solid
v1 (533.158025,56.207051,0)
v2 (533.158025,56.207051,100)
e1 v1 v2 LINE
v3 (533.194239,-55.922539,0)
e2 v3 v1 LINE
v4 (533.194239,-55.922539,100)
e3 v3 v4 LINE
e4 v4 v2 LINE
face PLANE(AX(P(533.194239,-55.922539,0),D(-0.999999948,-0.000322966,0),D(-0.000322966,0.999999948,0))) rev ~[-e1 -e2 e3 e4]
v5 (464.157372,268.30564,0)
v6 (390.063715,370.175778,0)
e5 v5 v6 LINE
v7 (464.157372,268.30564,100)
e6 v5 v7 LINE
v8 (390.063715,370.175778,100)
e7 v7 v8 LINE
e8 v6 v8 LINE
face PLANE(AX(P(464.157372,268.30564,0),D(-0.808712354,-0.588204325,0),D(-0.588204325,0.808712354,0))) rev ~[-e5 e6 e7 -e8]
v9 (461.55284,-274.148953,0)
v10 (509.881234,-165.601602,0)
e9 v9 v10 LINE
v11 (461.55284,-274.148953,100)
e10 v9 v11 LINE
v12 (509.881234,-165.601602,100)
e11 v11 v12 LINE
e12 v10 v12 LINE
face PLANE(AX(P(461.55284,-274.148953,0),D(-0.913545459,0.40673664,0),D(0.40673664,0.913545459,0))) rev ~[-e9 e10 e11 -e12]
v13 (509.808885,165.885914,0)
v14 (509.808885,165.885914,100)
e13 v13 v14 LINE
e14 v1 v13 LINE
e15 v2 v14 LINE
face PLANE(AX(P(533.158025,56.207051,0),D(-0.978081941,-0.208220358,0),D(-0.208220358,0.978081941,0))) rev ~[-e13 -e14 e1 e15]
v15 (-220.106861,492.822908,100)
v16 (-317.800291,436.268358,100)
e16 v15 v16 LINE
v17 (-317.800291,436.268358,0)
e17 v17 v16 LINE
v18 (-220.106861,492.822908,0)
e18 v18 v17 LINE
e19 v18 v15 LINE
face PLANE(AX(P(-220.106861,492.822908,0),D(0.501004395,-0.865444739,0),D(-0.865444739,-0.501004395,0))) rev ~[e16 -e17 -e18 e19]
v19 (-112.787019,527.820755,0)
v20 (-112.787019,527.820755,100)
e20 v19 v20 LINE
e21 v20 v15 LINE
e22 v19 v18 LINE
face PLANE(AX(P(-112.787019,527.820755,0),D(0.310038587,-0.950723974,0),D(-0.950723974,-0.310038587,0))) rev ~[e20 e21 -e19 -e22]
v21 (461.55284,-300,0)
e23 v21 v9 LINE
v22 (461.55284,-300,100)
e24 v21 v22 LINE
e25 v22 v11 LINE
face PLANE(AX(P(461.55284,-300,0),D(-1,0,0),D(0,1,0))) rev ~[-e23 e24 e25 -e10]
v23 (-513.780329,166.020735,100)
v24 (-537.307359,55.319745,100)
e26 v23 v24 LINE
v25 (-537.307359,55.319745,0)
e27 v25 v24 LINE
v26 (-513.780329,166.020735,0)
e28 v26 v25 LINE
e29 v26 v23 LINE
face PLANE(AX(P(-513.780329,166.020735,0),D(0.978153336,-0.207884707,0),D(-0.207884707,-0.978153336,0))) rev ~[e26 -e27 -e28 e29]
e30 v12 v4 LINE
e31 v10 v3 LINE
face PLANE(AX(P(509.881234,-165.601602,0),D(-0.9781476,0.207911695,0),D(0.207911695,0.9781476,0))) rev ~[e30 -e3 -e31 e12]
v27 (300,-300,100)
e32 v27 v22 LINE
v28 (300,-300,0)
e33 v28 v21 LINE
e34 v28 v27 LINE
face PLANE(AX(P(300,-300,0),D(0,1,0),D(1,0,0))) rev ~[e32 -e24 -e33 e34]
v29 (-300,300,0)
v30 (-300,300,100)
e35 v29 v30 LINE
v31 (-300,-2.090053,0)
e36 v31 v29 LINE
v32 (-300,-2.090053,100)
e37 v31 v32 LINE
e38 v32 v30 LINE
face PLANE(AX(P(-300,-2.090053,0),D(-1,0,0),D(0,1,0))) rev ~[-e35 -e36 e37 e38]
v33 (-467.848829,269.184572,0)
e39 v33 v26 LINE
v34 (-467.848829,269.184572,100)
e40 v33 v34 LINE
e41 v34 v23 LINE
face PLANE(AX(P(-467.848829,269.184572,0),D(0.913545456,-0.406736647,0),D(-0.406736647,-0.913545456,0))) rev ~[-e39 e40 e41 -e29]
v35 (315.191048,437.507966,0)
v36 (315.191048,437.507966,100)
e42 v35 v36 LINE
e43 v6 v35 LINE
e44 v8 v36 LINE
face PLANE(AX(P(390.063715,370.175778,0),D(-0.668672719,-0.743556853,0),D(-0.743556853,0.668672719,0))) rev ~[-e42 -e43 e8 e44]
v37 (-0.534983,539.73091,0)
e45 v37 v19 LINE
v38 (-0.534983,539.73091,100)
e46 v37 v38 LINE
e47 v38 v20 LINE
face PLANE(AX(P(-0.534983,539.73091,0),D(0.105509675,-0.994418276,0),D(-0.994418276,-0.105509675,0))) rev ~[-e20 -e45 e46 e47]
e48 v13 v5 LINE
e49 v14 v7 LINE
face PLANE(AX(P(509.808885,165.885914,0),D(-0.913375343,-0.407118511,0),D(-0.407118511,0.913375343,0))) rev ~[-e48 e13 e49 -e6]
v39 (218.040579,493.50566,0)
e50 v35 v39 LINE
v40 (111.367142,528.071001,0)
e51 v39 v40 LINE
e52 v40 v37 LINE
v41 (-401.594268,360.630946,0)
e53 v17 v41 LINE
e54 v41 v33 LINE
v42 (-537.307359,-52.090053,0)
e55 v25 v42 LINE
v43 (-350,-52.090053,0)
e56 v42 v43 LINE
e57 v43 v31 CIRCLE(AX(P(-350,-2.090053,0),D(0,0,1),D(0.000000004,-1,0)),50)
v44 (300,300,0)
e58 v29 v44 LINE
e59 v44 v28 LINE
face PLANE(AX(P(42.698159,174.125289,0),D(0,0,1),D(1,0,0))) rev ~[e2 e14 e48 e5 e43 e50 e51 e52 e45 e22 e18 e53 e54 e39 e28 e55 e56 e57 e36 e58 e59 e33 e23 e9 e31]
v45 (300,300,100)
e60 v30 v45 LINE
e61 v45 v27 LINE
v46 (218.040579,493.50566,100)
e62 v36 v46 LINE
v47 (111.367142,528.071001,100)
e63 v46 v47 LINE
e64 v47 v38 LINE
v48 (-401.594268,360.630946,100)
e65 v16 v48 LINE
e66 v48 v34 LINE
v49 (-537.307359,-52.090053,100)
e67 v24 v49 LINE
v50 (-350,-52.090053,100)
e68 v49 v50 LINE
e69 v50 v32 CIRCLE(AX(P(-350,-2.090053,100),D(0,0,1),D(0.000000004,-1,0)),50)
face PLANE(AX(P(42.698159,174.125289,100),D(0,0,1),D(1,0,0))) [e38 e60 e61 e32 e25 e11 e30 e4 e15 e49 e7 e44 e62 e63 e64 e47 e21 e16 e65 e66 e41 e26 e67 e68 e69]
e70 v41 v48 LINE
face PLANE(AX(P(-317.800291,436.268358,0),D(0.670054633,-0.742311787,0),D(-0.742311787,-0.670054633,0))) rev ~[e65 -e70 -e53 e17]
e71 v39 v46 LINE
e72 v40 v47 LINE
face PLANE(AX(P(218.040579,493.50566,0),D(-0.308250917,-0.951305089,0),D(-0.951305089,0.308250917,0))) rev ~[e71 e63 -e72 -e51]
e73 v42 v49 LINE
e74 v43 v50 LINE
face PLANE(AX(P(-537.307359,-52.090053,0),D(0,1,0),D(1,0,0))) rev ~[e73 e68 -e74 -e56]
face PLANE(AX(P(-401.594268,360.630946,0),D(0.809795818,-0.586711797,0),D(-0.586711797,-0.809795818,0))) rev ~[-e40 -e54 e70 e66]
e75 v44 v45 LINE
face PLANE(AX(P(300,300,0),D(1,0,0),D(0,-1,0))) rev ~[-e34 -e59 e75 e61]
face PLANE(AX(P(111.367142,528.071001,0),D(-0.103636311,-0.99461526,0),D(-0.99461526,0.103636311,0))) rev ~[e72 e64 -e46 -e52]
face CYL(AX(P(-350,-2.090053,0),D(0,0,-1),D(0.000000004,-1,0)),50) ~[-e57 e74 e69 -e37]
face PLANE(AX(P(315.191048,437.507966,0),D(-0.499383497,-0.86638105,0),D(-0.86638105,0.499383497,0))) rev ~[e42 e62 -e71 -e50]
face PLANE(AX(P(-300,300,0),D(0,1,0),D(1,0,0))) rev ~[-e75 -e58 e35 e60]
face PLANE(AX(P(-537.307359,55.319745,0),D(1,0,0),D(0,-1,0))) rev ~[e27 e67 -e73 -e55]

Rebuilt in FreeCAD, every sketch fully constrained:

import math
import FreeCAD as App
import Part
import Sketcher

V = App.Vector
Q = App.Units.Quantity

doc = App.newDocument("Part")
params = doc.addObject("Spreadsheet::Sheet", "Params")
for row, (alias, value) in enumerate([
    ("sketch1_radius", "50 mm"),
    ("sketch1_width", "600 mm"),
    ("pad1_length", "100 mm"),
], start=1):
    params.set(f"A{row}", alias)
    params.set(f"B{row}", "=" + value)
    params.setAlias(f"B{row}", alias)

body = doc.addObject("PartDesign::Body", "Body")

sketch1 = body.newObject("Sketcher::SketchObject", "Sketch")
sketch1.AttachmentSupport = (doc.getObject("XY_Plane"), [""])
sketch1.MapMode = "FlatFace"
sketch1.addGeometry([
    Part.LineSegment(V(-300, 300, 0), V(300, 300, 0)),
    Part.LineSegment(V(300, 300, 0), V(300, -300, 0)),
    Part.LineSegment(V(300, -300, 0), V(462, -300, 0)),
    Part.LineSegment(V(462, -300, 0), V(462, -274, 0)),
    Part.LineSegment(V(462, -274, 0), V(510, -166, 0)),
    Part.LineSegment(V(510, -166, 0), V(533, -56, 0)),
    Part.LineSegment(V(533, -56, 0), V(533, 56, 0)),
    Part.LineSegment(V(533, 56, 0), V(510, 166, 0)),
    Part.LineSegment(V(510, 166, 0), V(464, 268, 0)),
    Part.LineSegment(V(464, 268, 0), V(390, 370, 0)),
    Part.LineSegment(V(390, 370, 0), V(315, 438, 0)),
    Part.LineSegment(V(315, 438, 0), V(218, 494, 0)),
    Part.LineSegment(V(218, 494, 0), V(111, 528, 0)),
    Part.LineSegment(V(111, 528, 0), V(-1, 540, 0)),
    Part.LineSegment(V(-1, 540, 0), V(-113, 528, 0)),
    Part.LineSegment(V(-113, 528, 0), V(-220, 493, 0)),
    Part.LineSegment(V(-220, 493, 0), V(-318, 436, 0)),
    Part.LineSegment(V(-318, 436, 0), V(-402, 361, 0)),
    Part.LineSegment(V(-402, 361, 0), V(-468, 269, 0)),
    Part.LineSegment(V(-468, 269, 0), V(-514, 166, 0)),
    Part.LineSegment(V(-514, 166, 0), V(-537, 55, 0)),
    Part.LineSegment(V(-537, 55, 0), V(-537, -52, 0)),
    Part.LineSegment(V(-537, -52, 0), V(-350, -52, 0)),
    Part.ArcOfCircle(Part.Circle(V(-350, -2, 0), V(0, 0, 1), 50), math.radians(-90), math.radians(0)),
    Part.LineSegment(V(-300, -2, 0), V(-300, 300, 0)),
], False)
sketch1.addConstraint([
    Sketcher.Constraint("Coincident", 0, 2, 1, 1),
    Sketcher.Constraint("Coincident", 1, 2, 2, 1),
    Sketcher.Constraint("Coincident", 2, 2, 3, 1),
    Sketcher.Constraint("Coincident", 3, 2, 4, 1),
    Sketcher.Constraint("Coincident", 4, 2, 5, 1),
    Sketcher.Constraint("Coincident", 5, 2, 6, 1),
    Sketcher.Constraint("Coincident", 6, 2, 7, 1),
    Sketcher.Constraint("Coincident", 7, 2, 8, 1),
    Sketcher.Constraint("Coincident", 8, 2, 9, 1),
    Sketcher.Constraint("Coincident", 9, 2, 10, 1),
    Sketcher.Constraint("Coincident", 10, 2, 11, 1),
    Sketcher.Constraint("Coincident", 11, 2, 12, 1),
    Sketcher.Constraint("Coincident", 12, 2, 13, 1),
    Sketcher.Constraint("Coincident", 13, 2, 14, 1),
    Sketcher.Constraint("Coincident", 14, 2, 15, 1),
    Sketcher.Constraint("Coincident", 15, 2, 16, 1),
    Sketcher.Constraint("Coincident", 16, 2, 17, 1),
    Sketcher.Constraint("Coincident", 17, 2, 18, 1),
    Sketcher.Constraint("Coincident", 18, 2, 19, 1),
    Sketcher.Constraint("Coincident", 19, 2, 20, 1),
    Sketcher.Constraint("Coincident", 20, 2, 21, 1),
    Sketcher.Constraint("Coincident", 21, 2, 22, 1),
    Sketcher.Constraint("Tangent", 22, 2, 23, 1),
    Sketcher.Constraint("Tangent", 23, 2, 24, 1),
    Sketcher.Constraint("Coincident", 24, 2, 0, 1),
    Sketcher.Constraint("Horizontal", 0),
    Sketcher.Constraint("Vertical", 1),
    Sketcher.Constraint("Horizontal", 2),
    Sketcher.Constraint("Vertical", 3),
    Sketcher.Constraint("Vertical", 21),
    Sketcher.Constraint("Horizontal", 22),
    Sketcher.Constraint("Vertical", 24),
    Sketcher.Constraint("Symmetric", 1, 2, 24, 2, -1, 1),
    Sketcher.Constraint("Parallel", 4, 19),
    Sketcher.Constraint("Equal", 0, 1),
    Sketcher.Constraint("Radius", 23, Q("50 mm")),
    Sketcher.Constraint("DistanceX", 0, 1, 0, 2, Q("600 mm")),
    Sketcher.Constraint("Angle", 4, Q("66 deg")),
    Sketcher.Constraint("Angle", 5, Q("78 deg")),
    Sketcher.Constraint("DistanceY", -1, 1, 12, 2, Q("528.071001 mm")),
    Sketcher.Constraint("DistanceY", 23, 3, 17, 2, Q("362.720999 mm")),
    Sketcher.Constraint("DistanceX", 2, 1, 2, 2, Q("161.55284 mm")),
    Sketcher.Constraint("DistanceX", 22, 1, 22, 2, Q("187.307359 mm")),
    Sketcher.Constraint("DistanceY", 3, 2, 23, 3, Q("272.0589 mm")),
    Sketcher.Constraint("DistanceY", 4, 2, 0, 2, Q("465.601602 mm")),
    Sketcher.Constraint("DistanceX", 3, 2, 5, 2, Q("71.641399 mm")),
    Sketcher.Constraint("DistanceX", 13, 2, 9, 2, Q("390.598698 mm")),
    Sketcher.Constraint("DistanceX", 14, 2, 11, 2, Q("330.827598 mm")),
    Sketcher.Constraint("DistanceX", 19, 2, 18, 2, Q("45.9315 mm")),
    Sketcher.Constraint("DistanceY", 20, 2, 17, 2, Q("305.311201 mm")),
    Sketcher.Constraint("Distance", 4, Q("118.819868 mm")),
    Sketcher.Constraint("Distance", 7, Q("112.136681 mm")),
    Sketcher.Constraint("Distance", 8, Q("112.133228 mm")),
    Sketcher.Constraint("Distance", 9, Q("125.965849 mm")),
    Sketcher.Constraint("Distance", 10, Q("100.695282 mm")),
    Sketcher.Constraint("Distance", 11, Q("112.13365 mm")),
    Sketcher.Constraint("Distance", 12, Q("112.133782 mm")),
    Sketcher.Constraint("Distance", 13, Q("112.507951 mm")),
    Sketcher.Constraint("Distance", 15, Q("112.88223 mm")),
    Sketcher.Constraint("DistanceY", -1, 1, 6, 2, Q("56.207051 mm")),
    Sketcher.Constraint("DistanceX", -1, 1, 8, 2, Q("464.157372 mm")),
    Sketcher.Constraint("DistanceY", -1, 1, 8, 2, Q("268.30564 mm")),
    Sketcher.Constraint("DistanceY", -1, 1, 9, 2, Q("370.175778 mm")),
    Sketcher.Constraint("DistanceX", -1, 1, 10, 2, Q("315.191048 mm")),
    Sketcher.Constraint("DistanceX", -1, 1, 11, 2, Q("218.040579 mm")),
    Sketcher.Constraint("DistanceX", 15, 2, -1, 1, Q("220.106861 mm")),
    Sketcher.Constraint("DistanceY", -1, 1, 15, 2, Q("492.822908 mm")),
    Sketcher.Constraint("DistanceX", 16, 2, -1, 1, Q("317.800291 mm")),
    Sketcher.Constraint("DistanceY", -1, 1, 16, 2, Q("436.268358 mm")),
    Sketcher.Constraint("DistanceX", 17, 2, -1, 1, Q("401.594268 mm")),
    Sketcher.Constraint("DistanceX", 18, 2, -1, 1, Q("467.848829 mm")),
    Sketcher.Constraint("DistanceY", -1, 1, 18, 2, Q("269.184572 mm")),
    Sketcher.Constraint("DistanceX", 4, 2, 6, 2, Q("23.276791 mm")),
])
sketch1.setExpression("Constraints[35]", "Params.sketch1_radius")
sketch1.setExpression("Constraints[36]", "Params.sketch1_width")
pad1 = body.newObject("PartDesign::Pad", "Pad")
pad1.Profile = sketch1
pad1.setExpression("Length", "Params.pad1_length")

doc.recompute()
